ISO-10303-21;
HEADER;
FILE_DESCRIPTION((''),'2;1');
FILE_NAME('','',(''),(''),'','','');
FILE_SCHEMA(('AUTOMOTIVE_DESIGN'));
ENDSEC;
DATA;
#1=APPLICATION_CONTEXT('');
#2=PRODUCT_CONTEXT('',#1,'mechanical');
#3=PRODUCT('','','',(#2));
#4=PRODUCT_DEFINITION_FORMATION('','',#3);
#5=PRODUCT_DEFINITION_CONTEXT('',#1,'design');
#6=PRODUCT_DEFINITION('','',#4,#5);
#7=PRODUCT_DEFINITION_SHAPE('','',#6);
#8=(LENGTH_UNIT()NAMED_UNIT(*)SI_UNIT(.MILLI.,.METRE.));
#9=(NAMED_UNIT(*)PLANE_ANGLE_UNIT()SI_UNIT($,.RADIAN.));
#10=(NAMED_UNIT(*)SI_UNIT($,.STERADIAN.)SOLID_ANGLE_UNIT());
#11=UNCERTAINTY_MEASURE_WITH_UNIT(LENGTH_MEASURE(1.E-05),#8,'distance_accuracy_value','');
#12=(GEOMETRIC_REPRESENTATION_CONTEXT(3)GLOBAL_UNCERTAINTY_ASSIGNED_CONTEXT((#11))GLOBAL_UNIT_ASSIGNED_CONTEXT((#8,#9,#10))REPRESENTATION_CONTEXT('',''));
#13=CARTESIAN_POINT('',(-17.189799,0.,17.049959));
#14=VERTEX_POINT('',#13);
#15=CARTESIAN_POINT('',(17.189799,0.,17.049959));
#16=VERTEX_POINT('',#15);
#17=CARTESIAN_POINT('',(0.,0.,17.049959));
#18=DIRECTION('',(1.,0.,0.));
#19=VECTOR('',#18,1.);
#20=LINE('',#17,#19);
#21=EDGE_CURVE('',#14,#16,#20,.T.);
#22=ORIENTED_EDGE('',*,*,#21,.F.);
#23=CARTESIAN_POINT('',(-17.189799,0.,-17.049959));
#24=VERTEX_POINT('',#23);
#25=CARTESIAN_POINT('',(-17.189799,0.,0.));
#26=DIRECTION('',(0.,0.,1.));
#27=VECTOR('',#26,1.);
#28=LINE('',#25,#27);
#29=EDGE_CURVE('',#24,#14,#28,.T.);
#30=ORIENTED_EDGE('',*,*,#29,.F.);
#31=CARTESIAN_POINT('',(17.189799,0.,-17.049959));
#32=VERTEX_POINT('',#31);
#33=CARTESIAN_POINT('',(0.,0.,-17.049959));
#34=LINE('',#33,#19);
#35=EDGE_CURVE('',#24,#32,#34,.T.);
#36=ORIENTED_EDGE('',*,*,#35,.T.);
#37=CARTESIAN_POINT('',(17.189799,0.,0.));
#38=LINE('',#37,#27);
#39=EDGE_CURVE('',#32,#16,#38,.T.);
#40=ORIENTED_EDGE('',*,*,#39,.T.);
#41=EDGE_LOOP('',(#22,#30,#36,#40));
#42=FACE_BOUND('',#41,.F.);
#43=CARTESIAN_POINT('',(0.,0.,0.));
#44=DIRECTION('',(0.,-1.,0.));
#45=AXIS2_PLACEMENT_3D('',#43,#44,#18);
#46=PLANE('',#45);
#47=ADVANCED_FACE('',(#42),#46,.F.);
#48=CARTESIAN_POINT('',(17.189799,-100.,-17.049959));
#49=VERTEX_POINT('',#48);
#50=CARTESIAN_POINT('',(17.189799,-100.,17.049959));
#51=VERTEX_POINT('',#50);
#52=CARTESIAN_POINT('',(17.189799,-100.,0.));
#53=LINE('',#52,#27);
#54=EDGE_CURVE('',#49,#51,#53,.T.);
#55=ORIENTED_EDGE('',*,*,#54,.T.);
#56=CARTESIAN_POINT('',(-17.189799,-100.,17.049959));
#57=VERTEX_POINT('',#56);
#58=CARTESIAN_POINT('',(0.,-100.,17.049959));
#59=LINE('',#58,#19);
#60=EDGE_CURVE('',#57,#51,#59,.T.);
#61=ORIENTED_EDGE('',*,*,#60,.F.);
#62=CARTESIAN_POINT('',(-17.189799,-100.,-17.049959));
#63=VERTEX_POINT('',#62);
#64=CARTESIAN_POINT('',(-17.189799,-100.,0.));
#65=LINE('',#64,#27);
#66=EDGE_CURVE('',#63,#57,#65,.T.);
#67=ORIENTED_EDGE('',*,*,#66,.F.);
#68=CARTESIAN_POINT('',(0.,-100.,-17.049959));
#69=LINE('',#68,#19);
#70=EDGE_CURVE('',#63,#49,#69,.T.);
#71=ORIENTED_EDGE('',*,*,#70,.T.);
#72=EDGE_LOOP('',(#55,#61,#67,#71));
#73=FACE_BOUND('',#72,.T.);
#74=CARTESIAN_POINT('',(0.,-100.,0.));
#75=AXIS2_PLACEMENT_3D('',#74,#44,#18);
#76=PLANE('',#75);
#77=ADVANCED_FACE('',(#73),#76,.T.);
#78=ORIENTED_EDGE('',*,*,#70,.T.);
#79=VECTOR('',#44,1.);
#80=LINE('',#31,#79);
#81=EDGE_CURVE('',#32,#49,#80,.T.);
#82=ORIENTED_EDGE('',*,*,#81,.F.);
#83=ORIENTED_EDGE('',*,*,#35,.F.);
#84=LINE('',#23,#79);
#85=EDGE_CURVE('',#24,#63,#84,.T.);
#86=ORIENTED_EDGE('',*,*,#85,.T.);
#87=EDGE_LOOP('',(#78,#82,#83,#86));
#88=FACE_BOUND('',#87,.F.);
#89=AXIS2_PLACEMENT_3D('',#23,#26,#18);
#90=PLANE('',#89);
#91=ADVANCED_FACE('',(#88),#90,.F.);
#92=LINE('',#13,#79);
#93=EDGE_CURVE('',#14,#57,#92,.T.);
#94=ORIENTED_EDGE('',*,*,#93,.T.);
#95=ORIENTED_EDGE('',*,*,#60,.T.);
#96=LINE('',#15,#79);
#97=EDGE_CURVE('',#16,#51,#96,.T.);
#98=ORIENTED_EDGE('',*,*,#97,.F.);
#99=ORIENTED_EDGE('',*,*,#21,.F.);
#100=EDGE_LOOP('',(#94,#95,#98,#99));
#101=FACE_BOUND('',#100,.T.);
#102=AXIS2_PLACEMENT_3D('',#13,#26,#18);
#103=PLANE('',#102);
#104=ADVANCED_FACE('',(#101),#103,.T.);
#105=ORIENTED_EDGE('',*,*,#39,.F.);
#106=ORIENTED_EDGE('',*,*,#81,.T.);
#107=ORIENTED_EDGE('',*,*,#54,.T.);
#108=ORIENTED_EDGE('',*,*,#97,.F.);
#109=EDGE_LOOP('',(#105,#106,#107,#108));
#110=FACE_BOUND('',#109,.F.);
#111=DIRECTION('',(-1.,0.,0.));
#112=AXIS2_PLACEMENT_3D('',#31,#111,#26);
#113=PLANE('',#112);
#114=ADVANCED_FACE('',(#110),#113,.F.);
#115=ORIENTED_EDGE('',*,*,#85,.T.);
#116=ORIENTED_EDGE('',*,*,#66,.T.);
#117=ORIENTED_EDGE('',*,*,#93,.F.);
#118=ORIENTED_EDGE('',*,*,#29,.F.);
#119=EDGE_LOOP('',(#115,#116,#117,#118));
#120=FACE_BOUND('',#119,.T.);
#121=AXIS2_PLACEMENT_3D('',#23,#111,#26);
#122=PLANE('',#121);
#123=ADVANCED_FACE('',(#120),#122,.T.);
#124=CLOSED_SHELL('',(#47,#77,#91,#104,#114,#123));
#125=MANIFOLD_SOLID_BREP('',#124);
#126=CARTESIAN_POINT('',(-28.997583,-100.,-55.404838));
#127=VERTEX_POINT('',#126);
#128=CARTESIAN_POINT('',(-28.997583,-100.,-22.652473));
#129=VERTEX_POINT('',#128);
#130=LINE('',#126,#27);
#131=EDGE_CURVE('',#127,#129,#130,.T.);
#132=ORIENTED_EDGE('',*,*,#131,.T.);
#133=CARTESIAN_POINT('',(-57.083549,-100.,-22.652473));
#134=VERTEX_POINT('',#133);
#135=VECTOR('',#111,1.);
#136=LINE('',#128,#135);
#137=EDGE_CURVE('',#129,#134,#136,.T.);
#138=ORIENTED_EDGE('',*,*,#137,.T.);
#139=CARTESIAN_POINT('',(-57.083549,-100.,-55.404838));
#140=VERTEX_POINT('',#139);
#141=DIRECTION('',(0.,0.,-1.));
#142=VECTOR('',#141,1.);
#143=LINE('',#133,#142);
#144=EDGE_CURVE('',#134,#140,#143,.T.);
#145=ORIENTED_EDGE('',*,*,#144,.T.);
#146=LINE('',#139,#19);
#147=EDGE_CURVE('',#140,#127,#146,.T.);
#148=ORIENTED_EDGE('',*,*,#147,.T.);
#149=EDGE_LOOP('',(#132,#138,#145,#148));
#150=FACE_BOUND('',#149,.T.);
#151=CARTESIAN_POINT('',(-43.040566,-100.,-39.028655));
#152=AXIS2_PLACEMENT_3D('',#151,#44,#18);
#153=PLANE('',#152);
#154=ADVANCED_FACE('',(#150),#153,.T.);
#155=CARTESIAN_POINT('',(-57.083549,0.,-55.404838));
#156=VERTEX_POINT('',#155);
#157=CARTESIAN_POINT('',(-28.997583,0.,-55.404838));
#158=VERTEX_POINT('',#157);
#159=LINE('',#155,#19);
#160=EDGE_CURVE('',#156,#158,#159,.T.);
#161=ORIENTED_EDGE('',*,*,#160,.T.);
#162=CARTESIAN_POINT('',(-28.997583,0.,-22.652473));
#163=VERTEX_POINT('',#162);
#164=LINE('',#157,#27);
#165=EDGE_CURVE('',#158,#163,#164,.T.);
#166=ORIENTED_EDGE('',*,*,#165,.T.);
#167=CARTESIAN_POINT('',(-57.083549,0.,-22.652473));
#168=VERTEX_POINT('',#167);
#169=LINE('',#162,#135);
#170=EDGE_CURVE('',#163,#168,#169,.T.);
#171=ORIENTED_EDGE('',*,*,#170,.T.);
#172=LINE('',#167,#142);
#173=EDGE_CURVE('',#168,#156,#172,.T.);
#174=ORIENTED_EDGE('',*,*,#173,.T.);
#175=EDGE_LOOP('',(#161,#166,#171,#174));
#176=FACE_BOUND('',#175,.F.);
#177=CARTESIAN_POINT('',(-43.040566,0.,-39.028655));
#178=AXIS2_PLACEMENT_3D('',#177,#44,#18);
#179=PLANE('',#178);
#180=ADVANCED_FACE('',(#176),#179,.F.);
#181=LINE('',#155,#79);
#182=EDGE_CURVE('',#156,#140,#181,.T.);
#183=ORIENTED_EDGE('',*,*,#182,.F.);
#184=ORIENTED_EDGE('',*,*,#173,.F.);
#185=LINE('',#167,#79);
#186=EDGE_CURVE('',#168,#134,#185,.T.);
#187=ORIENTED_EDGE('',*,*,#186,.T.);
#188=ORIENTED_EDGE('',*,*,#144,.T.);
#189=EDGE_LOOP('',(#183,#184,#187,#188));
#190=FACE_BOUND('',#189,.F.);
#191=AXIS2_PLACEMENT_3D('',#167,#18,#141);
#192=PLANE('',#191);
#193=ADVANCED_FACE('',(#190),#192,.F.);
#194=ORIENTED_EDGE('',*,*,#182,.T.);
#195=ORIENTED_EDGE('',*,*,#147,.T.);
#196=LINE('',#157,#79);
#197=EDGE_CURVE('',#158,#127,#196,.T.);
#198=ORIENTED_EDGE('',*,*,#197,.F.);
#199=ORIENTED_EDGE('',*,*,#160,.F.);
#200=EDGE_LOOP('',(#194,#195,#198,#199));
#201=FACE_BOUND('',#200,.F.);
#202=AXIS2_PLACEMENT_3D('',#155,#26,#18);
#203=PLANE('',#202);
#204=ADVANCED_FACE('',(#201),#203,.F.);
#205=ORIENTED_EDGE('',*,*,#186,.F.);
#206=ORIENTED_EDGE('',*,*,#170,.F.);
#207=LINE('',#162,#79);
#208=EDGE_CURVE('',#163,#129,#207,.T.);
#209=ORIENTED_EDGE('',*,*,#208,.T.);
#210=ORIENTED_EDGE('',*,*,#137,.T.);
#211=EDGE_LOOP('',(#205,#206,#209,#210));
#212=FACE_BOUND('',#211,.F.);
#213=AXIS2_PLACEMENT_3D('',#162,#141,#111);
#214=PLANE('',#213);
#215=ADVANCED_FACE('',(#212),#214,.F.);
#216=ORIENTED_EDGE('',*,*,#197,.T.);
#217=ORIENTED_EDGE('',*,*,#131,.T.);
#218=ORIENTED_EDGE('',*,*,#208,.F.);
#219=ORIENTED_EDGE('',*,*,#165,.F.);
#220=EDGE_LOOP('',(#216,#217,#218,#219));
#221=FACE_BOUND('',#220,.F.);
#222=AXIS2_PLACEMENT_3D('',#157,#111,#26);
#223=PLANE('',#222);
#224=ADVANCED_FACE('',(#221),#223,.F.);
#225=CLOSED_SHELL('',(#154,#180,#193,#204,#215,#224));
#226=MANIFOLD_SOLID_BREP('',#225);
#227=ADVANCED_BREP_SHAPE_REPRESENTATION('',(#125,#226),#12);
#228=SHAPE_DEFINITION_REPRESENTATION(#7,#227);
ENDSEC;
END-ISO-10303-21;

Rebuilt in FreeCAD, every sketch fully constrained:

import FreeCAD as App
import Part
import Sketcher
from FreeCAD import Vector


def add_polygon(sketch, points):
    """Adds a closed chain of lines whose ends are joined by coincident constraints."""
    first, n = sketch.GeometryCount, len(points)
    for a, b in zip(points, points[1:] + points[:1]):
        sketch.addGeometry(Part.LineSegment(App.Vector(*a, 0), App.Vector(*b, 0)), False)
    for i in range(n):
        sketch.addConstraint(Sketcher.Constraint("Coincident", first + i, 2, first + (i + 1) % n, 1))

doc = App.newDocument("Part")
params = doc.addObject("Spreadsheet::Sheet", "Params")
for row, (alias, value) in enumerate([
    ("pad1_length", "100 mm"),
    ("pad2_length", "100 mm"),
], start=1):
    params.set(f"A{row}", alias)
    params.set(f"B{row}", "=" + value)
    params.setAlias(f"B{row}", alias)

body = doc.addObject("PartDesign::Body", "Body")

sketch1 = body.newObject("Sketcher::SketchObject", "Sketch")
sketch1.AttachmentSupport = (doc.getObject("XZ_Plane"), [""])
sketch1.MapMode = "FlatFace"
add_polygon(sketch1, [(-17, 17), (-17, -17), (17, -17), (17, 17)])
sketch1.addConstraint([
    Sketcher.Constraint("Vertical", 0),
    Sketcher.Constraint("Horizontal", 1),
    Sketcher.Constraint("Vertical", 2),
    Sketcher.Constraint("Horizontal", 3),
    Sketcher.Constraint("Symmetric", 0, 2, 2, 2, -1, 1),
    Sketcher.Constraint("DistanceY", 0, 2, 0, 1, 34.099918),
    Sketcher.Constraint("DistanceX", 0, 2, -1, 1, 17.189799),
])
pad1 = body.newObject("PartDesign::Pad", "Pad")
pad1.Profile = sketch1
pad1.setExpression("Length", "Params.pad1_length")
body2 = doc.addObject("PartDesign::Body", "Body001")

sketch2 = body2.newObject("Sketcher::SketchObject", "Sketch001")
sketch2.AttachmentSupport = (doc.getObject("XZ_Plane001"), [""])
sketch2.MapMode = "FlatFace"
add_polygon(sketch2, [(-29, -55), (-29, -23), (-57, -23), (-57, -55)])
sketch2.addConstraint([
    Sketcher.Constraint("Vertical", 0),
    Sketcher.Constraint("Horizontal", 1),
    Sketcher.Constraint("Vertical", 2),
    Sketcher.Constraint("Horizontal", 3),
    Sketcher.Constraint("DistanceX", 1, 2, 1, 1, 28.085966),
    Sketcher.Constraint("DistanceY", 0, 1, 0, 2, 32.752365),
    Sketcher.Constraint("DistanceX", 1, 2, -1, 1, 57.083549),
    Sketcher.Constraint("DistanceY", 0, 2, -1, 1, 22.652473),
])
pad2 = body2.newObject("PartDesign::Pad", "Pad001")
pad2.Profile = sketch2
pad2.setExpression("Length", "Params.pad2_length")

doc.recompute()
